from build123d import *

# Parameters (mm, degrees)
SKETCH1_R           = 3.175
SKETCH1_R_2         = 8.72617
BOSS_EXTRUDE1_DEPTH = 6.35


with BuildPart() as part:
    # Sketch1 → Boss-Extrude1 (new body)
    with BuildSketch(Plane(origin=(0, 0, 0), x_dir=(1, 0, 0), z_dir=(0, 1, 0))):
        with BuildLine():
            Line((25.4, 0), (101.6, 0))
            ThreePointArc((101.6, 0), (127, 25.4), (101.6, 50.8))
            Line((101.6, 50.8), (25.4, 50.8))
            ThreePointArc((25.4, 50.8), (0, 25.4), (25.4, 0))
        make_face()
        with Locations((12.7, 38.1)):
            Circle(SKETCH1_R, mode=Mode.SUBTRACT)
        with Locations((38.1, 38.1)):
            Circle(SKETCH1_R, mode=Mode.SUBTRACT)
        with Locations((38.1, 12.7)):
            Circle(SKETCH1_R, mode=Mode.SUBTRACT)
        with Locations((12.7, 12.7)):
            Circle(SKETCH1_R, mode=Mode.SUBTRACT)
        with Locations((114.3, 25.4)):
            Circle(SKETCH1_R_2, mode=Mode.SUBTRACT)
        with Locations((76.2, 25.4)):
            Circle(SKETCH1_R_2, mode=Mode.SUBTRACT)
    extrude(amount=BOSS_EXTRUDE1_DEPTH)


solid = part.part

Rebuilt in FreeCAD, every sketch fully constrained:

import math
import FreeCAD as App
import Part
import Sketcher

V = App.Vector
Q = App.Units.Quantity

doc = App.newDocument("Part")
body = doc.addObject("PartDesign::Body", "Body")

sketch1 = doc.addObject("Sketcher::SketchObject", "Sketch")
body.addObject(sketch1)
sketch1.AttachmentSupport = (doc.XZ_Plane, [""])
sketch1.MapMode = "FlatFace"
sketch1.addGeometry(Part.LineSegment(V(25.4, 0, 0), V(101.6, 0, 0)), False)
sketch1.addGeometry(Part.ArcOfCircle(Part.Circle(V(101.6, -25.4, 0), V(0, 0, 1), 25.4), math.radians(-90), math.radians(90)), False)
sketch1.addGeometry(Part.LineSegment(V(101.6, -50.8, 0), V(25.4, -50.8, 0)), False)
sketch1.addGeometry(Part.ArcOfCircle(Part.Circle(V(25.4, -25.4, 0), V(0, 0, 1), 25.4), math.radians(90), math.radians(270)), False)
sketch1.addGeometry(Part.Circle(V(12.7, -12.7, 0), V(0, 0, 1), 3.2), False)
sketch1.addGeometry(Part.Circle(V(38.1, -12.7, 0), V(0, 0, 1), 3.2), False)
sketch1.addGeometry(Part.Circle(V(12.7, -38.1, 0), V(0, 0, 1), 3.2), False)
sketch1.addGeometry(Part.Circle(V(38.1, -38.1, 0), V(0, 0, 1), 3.2), False)
sketch1.addGeometry(Part.Circle(V(76.2, -25.4, 0), V(0, 0, 1), 8.7), False)
sketch1.addGeometry(Part.Circle(V(114.3, -25.4, 0), V(0, 0, 1), 8.7), False)
sketch1.addConstraint(Sketcher.Constraint("Tangent", 0, 2, 1, 2))
sketch1.addConstraint(Sketcher.Constraint("Tangent", 1, 1, 2, 1))
sketch1.addConstraint(Sketcher.Constraint("Tangent", 2, 2, 3, 2))
sketch1.addConstraint(Sketcher.Constraint("Tangent", 3, 1, 0, 1))
sketch1.addConstraint(Sketcher.Constraint("Horizontal", 0))
sketch1.addConstraint(Sketcher.Constraint("Horizontal", 2))
sketch1.addConstraint(Sketcher.Constraint("Equal", 4, 5))
sketch1.addConstraint(Sketcher.Constraint("Equal", 5, 6))
sketch1.addConstraint(Sketcher.Constraint("Equal", 6, 7))
sketch1.addConstraint(Sketcher.Constraint("Equal", 8, 9))
sketch1.addConstraint(Sketcher.Constraint("PointOnObject", 0, 2, -1))
sketch1.addConstraint(Sketcher.Constraint("Horizontal", 4, 3, 5, 3))
sketch1.addConstraint(Sketcher.Constraint("Horizontal", 6, 3, 7, 3))
sketch1.addConstraint(Sketcher.Constraint("Horizontal", 3, 3, 8, 3))
sketch1.addConstraint(Sketcher.Constraint("Horizontal", 8, 3, 9, 3))
sketch1.addConstraint(Sketcher.Constraint("Vertical", 4, 3, 6, 3))
sketch1.addConstraint(Sketcher.Constraint("Vertical", 5, 3, 7, 3))
sketch1.addConstraint(Sketcher.Constraint("Radius", 1, Q("1 in")))
sketch1.addConstraint(Sketcher.Constraint("Diameter", 4, Q("0.25 in")))
sketch1.addConstraint(Sketcher.Constraint("DistanceX", 0, 1, 0, 2, Q("3 in")))
sketch1.addConstraint(Sketcher.Constraint("DistanceX", -1, 1, 1, 3, Q("4 in")))
sketch1.addConstraint(Sketcher.Constraint("DistanceX", -1, 1, 8, 3, Q("3 in")))
sketch1.addConstraint(Sketcher.Constraint("DistanceX", 4, 3, 5, 3, Q("1 in")))
sketch1.addConstraint(Sketcher.Constraint("DistanceY", 6, 3, 4, 3, Q("1 in")))
sketch1.addConstraint(Sketcher.Constraint("DistanceX", 5, 3, 9, 3, Q("3 in")))
sketch1.addConstraint(Sketcher.Constraint("Diameter", 8, Q("0.6871 in")))
sketch1.addConstraint(Sketcher.Constraint("DistanceX", -1, 1, 4, 3, Q("0.5 in")))
sketch1.addConstraint(Sketcher.Constraint("DistanceY", 4, 3, -1, 1, Q("0.5 in")))
pad1 = doc.addObject("PartDesign::Pad", "Pad")
body.addObject(pad1)
pad1.Profile = sketch1
pad1.Length = Q("0.25 in")
pad1.Reversed = True

doc.recompute()
